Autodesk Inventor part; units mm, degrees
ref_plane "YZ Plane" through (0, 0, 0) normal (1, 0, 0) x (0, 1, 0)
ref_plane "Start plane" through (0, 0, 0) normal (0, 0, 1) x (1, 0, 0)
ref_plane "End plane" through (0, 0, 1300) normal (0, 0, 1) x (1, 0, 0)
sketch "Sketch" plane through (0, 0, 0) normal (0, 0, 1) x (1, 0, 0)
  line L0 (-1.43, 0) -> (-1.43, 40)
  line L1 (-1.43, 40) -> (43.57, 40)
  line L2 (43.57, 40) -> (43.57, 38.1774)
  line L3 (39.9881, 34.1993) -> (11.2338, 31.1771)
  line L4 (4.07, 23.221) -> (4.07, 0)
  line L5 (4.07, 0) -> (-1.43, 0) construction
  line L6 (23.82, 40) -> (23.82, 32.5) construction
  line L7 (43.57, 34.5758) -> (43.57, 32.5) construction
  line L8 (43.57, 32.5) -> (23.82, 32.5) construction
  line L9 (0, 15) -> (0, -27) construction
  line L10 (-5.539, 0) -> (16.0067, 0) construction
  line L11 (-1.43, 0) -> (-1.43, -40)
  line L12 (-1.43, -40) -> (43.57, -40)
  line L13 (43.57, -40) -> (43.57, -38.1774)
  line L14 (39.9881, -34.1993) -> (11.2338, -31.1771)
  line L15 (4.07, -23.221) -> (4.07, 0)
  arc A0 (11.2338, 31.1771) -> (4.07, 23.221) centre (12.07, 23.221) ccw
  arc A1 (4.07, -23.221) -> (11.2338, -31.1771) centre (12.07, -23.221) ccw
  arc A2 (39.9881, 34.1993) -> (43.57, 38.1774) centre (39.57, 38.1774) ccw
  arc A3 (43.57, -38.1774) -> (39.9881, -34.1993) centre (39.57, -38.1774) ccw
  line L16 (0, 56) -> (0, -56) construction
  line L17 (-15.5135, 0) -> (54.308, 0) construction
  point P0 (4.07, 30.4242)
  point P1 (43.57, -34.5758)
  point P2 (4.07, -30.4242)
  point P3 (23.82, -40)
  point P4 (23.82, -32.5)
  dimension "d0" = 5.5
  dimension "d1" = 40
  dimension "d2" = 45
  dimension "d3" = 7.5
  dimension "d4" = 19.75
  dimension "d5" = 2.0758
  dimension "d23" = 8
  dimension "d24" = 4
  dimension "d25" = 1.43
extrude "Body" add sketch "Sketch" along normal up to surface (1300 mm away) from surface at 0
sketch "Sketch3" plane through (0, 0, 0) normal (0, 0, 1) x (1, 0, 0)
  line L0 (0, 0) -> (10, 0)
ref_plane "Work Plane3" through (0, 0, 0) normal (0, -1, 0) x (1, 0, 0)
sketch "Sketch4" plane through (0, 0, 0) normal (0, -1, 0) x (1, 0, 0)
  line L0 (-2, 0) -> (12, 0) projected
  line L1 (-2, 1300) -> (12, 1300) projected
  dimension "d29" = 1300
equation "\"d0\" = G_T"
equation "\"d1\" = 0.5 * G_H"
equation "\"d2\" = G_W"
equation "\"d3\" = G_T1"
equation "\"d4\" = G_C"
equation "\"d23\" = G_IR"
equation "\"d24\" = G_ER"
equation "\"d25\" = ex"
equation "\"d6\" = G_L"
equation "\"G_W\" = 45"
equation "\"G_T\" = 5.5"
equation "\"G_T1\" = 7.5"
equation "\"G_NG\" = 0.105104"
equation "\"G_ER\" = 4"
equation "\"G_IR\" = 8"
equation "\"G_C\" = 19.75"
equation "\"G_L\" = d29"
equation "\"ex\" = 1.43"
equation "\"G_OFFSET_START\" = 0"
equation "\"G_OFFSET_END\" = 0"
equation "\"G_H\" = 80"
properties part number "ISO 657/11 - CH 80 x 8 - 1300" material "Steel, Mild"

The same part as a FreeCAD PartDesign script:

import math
import FreeCAD as App
import Part
import Sketcher
Q = App.Units.Quantity

doc = App.newDocument("Part")
body = doc.addObject("PartDesign::Body", "Body")

# Sketch on XY plane
sketch1 = body.newObject("Sketcher::SketchObject", "Sketch")
sketch1.AttachmentSupport = (doc.getObject("XY_Plane"), [""])
sketch1.MapMode = "FlatFace"
sketch1.addGeometry(Part.LineSegment(App.Vector(-1.43, 40, 0), App.Vector(-1.43, -40, 0)), False)
sketch1.addGeometry(Part.LineSegment(App.Vector(-1.43, -40, 0), App.Vector(43.57, -40, 0)), False)
sketch1.addGeometry(Part.LineSegment(App.Vector(43.57, -40, 0), App.Vector(43.57, -38.1774, 0)), False)
sketch1.addGeometry(Part.ArcOfCircle(Part.Circle(App.Vector(39.57, -38.1774, 0), App.Vector(0, 0, 1), 4), math.radians(0), math.radians(84.000216)), False)
sketch1.addGeometry(Part.LineSegment(App.Vector(39.9881, -34.1993, 0), App.Vector(11.2338, -31.1771, 0)), False)
sketch1.addGeometry(Part.ArcOfCircle(Part.Circle(App.Vector(12.07, -23.221, 0), App.Vector(0, 0, 1), 8), math.radians(180), math.radians(264.000141)), False)
sketch1.addGeometry(Part.LineSegment(App.Vector(4.07, -23.221, 0), App.Vector(4.07, 23.221, 0)), False)
sketch1.addGeometry(Part.ArcOfCircle(Part.Circle(App.Vector(12.07, 23.221, 0), App.Vector(0, 0, 1), 7.999922), math.radians(95.999859), math.radians(180)), False)
sketch1.addGeometry(Part.LineSegment(App.Vector(11.2338, 31.1771, 0), App.Vector(39.9881, 34.1993, 0)), False)
sketch1.addGeometry(Part.ArcOfCircle(Part.Circle(App.Vector(39.57, 38.1774, 0), App.Vector(0, 0, 1), 4.000011), math.radians(-84.000216), math.radians(0)), False)
sketch1.addGeometry(Part.LineSegment(App.Vector(43.57, 38.1774, 0), App.Vector(43.57, 40, 0)), False)
sketch1.addGeometry(Part.LineSegment(App.Vector(43.57, 40, 0), App.Vector(-1.43, 40, 0)), False)
sketch1.addConstraint(Sketcher.Constraint("Coincident", 0, 2, 1, 1))
sketch1.addConstraint(Sketcher.Constraint("Coincident", 1, 2, 2, 1))
sketch1.addConstraint(Sketcher.Constraint("Tangent", 2, 2, 3, 1))
sketch1.addConstraint(Sketcher.Constraint("Tangent", 3, 2, 4, 1))
sketch1.addConstraint(Sketcher.Constraint("Tangent", 4, 2, 5, 2))
sketch1.addConstraint(Sketcher.Constraint("Tangent", 5, 1, 6, 1))
sketch1.addConstraint(Sketcher.Constraint("Tangent", 6, 2, 7, 2))
sketch1.addConstraint(Sketcher.Constraint("Tangent", 7, 1, 8, 1))
sketch1.addConstraint(Sketcher.Constraint("Tangent", 8, 2, 9, 1))
sketch1.addConstraint(Sketcher.Constraint("Tangent", 9, 2, 10, 1))
sketch1.addConstraint(Sketcher.Constraint("Coincident", 10, 2, 11, 1))
sketch1.addConstraint(Sketcher.Constraint("Coincident", 11, 2, 0, 1))
sketch1.addConstraint(Sketcher.Constraint("Vertical", 0))
sketch1.addConstraint(Sketcher.Constraint("Horizontal", 1))
sketch1.addConstraint(Sketcher.Constraint("Vertical", 2))
sketch1.addConstraint(Sketcher.Constraint("Vertical", 6))
sketch1.addConstraint(Sketcher.Constraint("Vertical", 10))
sketch1.addConstraint(Sketcher.Constraint("Horizontal", 11))
sketch1.addConstraint(Sketcher.Constraint("Equal", 5, 7))
sketch1.addConstraint(Sketcher.Constraint("Equal", 3, 9))
sketch1.addConstraint(Sketcher.Constraint("Symmetric", 3, 3, 9, 3, -1))
sketch1.addConstraint(Sketcher.Constraint("Vertical", 4, 2, 7, 1))
sketch1.addConstraint(Sketcher.Constraint("Equal", 2, 10))
sketch1.addConstraint(Sketcher.Constraint("Radius", 3, Q("4 mm")))
sketch1.addConstraint(Sketcher.Constraint("Radius", 5, Q("8 mm")))
sketch1.addConstraint(Sketcher.Constraint("DistanceX", 1, 1, 1, 2, Q("45 mm")))
sketch1.addConstraint(Sketcher.Constraint("DistanceY", 0, 2, -1, 1, Q("40 mm")))
sketch1.addConstraint(Sketcher.Constraint("DistanceX", 0, 2, 5, 1, Q("5.5 mm")))
sketch1.addConstraint(Sketcher.Constraint("DistanceX", 0, 2, -1, 1, Q("1.43 mm")))
sketch1.addConstraint(Sketcher.Constraint("Angle", 4, Q("174 deg")))
sketch1.addConstraint(Sketcher.Constraint("DistanceY", 6, 1, 6, 2, Q("46.442 mm")))
pad1 = body.newObject("PartDesign::Pad", "Pad")
pad1.Profile = sketch1
pad1.Length = 1300

doc.recompute()
